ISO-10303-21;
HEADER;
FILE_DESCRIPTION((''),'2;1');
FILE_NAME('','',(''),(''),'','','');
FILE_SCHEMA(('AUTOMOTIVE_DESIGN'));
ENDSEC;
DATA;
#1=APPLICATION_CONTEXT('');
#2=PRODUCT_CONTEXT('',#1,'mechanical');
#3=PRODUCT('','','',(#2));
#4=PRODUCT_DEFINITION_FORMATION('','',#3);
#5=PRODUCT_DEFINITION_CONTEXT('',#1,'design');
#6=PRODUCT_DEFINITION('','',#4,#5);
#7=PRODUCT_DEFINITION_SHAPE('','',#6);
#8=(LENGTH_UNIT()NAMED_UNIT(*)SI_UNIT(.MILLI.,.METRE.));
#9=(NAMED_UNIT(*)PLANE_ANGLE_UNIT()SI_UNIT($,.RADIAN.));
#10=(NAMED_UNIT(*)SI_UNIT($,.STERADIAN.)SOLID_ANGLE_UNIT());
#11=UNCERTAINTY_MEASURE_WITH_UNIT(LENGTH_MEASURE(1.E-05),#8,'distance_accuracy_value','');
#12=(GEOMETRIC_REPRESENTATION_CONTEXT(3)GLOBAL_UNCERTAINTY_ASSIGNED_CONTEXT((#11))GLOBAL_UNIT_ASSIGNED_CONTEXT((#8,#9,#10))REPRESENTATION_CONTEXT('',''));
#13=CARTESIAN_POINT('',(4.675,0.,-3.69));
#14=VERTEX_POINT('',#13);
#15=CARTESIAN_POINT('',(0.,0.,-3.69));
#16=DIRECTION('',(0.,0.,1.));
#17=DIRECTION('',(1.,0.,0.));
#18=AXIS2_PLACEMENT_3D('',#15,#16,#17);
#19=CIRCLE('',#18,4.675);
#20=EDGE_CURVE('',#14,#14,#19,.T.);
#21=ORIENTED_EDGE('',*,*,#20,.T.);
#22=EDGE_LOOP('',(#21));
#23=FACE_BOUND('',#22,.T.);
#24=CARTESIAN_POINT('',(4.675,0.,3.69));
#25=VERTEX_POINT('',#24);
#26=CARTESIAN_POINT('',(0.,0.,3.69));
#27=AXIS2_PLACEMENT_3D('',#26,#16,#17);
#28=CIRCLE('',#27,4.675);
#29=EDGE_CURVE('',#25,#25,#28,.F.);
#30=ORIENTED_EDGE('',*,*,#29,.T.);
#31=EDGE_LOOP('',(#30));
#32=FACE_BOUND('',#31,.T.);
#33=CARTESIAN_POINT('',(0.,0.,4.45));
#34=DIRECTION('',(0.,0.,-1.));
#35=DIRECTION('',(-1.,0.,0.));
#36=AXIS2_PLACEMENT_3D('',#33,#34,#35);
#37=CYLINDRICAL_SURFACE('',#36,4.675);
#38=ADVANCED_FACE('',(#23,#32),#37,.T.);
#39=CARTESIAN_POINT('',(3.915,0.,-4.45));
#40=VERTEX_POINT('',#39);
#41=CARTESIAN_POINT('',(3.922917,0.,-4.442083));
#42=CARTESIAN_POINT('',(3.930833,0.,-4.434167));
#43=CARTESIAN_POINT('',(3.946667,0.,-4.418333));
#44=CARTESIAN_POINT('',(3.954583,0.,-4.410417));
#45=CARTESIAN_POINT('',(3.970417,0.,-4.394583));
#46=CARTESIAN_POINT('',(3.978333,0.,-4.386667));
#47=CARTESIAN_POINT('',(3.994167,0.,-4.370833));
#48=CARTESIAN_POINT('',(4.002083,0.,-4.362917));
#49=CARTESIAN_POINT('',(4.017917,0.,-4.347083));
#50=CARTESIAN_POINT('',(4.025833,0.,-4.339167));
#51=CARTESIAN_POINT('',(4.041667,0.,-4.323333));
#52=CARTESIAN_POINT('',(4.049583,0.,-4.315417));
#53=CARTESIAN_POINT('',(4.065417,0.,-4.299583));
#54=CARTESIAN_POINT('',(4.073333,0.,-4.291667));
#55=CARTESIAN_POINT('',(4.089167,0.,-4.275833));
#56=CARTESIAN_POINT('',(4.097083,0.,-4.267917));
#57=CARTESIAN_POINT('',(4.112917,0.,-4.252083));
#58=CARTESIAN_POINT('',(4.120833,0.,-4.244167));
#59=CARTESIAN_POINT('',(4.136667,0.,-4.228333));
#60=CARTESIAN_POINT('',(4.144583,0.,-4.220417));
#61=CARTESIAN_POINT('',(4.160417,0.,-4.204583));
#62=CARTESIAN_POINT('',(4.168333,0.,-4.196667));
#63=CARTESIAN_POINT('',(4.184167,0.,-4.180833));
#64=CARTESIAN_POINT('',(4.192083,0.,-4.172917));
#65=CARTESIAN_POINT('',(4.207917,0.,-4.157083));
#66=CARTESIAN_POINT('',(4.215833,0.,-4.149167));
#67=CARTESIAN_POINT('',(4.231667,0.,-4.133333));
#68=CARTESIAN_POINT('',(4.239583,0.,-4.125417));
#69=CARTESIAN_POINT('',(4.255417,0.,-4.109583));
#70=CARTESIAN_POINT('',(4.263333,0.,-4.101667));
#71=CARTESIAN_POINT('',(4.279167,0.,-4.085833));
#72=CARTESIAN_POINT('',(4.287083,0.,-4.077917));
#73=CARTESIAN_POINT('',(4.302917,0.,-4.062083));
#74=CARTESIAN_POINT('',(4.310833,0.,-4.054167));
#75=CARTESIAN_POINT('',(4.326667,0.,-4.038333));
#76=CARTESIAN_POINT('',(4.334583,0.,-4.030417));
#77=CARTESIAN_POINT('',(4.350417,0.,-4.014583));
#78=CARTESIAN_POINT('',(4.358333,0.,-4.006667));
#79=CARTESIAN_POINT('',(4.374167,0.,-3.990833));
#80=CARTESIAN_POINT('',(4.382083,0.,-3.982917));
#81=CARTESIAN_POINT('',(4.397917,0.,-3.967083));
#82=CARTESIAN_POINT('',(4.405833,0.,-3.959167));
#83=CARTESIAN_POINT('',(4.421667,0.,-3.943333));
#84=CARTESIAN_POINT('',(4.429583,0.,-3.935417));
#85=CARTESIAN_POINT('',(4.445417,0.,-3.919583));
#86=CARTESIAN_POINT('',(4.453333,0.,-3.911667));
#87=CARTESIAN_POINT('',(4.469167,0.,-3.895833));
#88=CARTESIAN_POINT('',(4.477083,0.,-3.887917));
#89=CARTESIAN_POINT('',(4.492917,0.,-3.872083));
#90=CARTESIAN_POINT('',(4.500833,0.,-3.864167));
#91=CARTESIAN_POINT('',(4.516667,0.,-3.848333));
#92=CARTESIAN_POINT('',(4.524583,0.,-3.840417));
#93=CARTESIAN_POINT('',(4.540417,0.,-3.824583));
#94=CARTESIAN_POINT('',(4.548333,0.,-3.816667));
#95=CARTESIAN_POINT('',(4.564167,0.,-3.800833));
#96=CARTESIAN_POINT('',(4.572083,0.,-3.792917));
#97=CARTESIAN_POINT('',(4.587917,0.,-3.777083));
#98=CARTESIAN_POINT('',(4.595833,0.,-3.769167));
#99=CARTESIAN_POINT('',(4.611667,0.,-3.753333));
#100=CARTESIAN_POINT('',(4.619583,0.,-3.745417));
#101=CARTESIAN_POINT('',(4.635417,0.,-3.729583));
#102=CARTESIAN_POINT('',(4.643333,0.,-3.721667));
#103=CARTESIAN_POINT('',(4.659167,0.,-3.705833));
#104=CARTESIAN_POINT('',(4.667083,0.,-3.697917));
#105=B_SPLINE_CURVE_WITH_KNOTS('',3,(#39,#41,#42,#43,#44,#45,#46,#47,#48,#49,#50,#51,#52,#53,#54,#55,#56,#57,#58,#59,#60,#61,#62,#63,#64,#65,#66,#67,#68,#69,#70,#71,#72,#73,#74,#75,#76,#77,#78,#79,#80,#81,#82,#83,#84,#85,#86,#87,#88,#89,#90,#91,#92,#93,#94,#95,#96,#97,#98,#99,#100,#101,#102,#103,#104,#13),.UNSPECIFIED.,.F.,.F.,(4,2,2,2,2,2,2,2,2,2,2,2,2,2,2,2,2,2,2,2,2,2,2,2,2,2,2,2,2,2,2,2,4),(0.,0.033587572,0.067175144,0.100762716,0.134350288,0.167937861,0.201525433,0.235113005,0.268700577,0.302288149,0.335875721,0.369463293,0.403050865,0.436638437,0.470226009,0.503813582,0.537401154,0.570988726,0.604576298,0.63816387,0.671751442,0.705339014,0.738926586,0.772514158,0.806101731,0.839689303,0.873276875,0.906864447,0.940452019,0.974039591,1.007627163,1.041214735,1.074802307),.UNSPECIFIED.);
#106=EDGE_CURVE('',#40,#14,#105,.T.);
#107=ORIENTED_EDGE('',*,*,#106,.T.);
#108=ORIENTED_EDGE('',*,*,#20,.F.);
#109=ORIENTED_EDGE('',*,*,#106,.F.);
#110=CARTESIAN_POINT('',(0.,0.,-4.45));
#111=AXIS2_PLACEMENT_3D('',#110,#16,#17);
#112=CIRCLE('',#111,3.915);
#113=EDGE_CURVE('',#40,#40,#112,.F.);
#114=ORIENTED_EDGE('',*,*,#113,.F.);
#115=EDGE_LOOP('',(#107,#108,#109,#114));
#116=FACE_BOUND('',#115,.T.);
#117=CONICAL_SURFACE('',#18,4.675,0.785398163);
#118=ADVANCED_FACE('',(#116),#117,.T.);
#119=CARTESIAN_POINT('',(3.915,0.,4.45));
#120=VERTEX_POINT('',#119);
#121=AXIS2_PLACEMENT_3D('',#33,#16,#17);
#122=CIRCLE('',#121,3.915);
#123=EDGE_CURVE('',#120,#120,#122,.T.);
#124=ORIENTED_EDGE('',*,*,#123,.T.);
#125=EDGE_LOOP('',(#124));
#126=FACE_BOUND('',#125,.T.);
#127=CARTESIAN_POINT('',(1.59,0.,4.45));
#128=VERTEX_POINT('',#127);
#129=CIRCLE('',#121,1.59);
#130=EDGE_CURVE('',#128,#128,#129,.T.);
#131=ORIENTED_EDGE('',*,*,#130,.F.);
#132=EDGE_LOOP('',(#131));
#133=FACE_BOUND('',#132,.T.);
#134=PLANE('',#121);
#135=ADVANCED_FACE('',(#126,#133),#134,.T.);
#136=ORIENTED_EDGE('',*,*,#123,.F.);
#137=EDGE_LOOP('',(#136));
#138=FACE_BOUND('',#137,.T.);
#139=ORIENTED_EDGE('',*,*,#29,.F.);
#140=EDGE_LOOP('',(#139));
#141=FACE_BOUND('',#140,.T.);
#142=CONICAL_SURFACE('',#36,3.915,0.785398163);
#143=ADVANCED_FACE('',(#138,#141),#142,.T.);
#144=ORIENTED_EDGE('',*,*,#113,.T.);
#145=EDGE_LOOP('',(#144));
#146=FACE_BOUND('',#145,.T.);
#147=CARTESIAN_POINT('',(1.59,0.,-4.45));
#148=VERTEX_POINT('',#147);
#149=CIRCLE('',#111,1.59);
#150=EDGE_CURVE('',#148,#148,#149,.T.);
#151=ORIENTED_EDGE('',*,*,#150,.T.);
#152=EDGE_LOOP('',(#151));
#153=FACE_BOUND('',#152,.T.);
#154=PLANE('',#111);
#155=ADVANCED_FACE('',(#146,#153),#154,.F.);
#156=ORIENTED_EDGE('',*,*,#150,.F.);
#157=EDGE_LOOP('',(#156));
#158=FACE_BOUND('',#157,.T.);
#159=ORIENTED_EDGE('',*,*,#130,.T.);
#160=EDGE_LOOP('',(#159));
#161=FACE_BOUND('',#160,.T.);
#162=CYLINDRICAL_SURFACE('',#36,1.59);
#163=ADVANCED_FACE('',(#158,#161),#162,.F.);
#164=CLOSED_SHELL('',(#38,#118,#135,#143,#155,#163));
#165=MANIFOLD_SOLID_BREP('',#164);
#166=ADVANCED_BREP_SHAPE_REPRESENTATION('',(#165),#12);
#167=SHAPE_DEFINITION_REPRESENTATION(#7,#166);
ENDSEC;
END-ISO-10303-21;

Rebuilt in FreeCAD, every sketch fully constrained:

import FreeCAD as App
import Part
import Sketcher

V = App.Vector
Q = App.Units.Quantity


def edges_at(feature, points):
    """Names of the edges that pass closest to the given points."""
    edges = feature.Shape.Edges
    near = lambda p: min(range(len(edges)), key=lambda i: edges[i].distToShape(Part.Vertex(*p))[0])
    return sorted({f"Edge{near(p) + 1}" for p in points})

doc = App.newDocument("Part")
params = doc.addObject("Spreadsheet::Sheet", "Params")
for row, (alias, value) in enumerate([
    ("sketch1_diameter", "9.35 mm"),
    ("sketch1_diameter2", "3.18 mm"),
    ("pad1_length", "8.9 mm"),
    ("chamfer_size", "0.76 mm"),
], start=1):
    params.set(f"A{row}", alias)
    params.set(f"B{row}", "=" + value)
    params.setAlias(f"B{row}", alias)

body = doc.addObject("PartDesign::Body", "Body")

# Sketch on XY plane
sketch1 = body.newObject("Sketcher::SketchObject", "Sketch")
sketch1.AttachmentSupport = (doc.getObject("XY_Plane"), [""])
sketch1.MapMode = "FlatFace"
sketch1.addGeometry(Part.Circle(V(0, 0, 0), V(0, 0, 1), 4.675), False)
sketch1.addGeometry(Part.Circle(V(0, 0, 0), V(0, 0, 1), 1.59), False)
sketch1.addConstraint(Sketcher.Constraint("Coincident", 0, 3, -1, 1))
sketch1.addConstraint(Sketcher.Constraint("Coincident", 1, 3, -1, 1))
sketch1.addConstraint(Sketcher.Constraint("Diameter", 0, Q("9.35 mm")))
sketch1.addConstraint(Sketcher.Constraint("Diameter", 1, Q("3.18 mm")))
sketch1.setExpression("Constraints[2]", "Params.sketch1_diameter")
sketch1.setExpression("Constraints[3]", "Params.sketch1_diameter2")
pad1 = body.newObject("PartDesign::Pad", "Pad")
pad1.Profile = sketch1
pad1.setExpression("Length", "Params.pad1_length")
pad1.Midplane = True
doc.recompute()

chamfer = body.newObject("PartDesign::Chamfer", "Chamfer")
chamfer.Base = (pad1, edges_at(pad1, [(-4.675, 0, -4.45), (-4.675, 0, 4.45)]))
chamfer.setExpression("Size", "Params.chamfer_size")

doc.recompute()
